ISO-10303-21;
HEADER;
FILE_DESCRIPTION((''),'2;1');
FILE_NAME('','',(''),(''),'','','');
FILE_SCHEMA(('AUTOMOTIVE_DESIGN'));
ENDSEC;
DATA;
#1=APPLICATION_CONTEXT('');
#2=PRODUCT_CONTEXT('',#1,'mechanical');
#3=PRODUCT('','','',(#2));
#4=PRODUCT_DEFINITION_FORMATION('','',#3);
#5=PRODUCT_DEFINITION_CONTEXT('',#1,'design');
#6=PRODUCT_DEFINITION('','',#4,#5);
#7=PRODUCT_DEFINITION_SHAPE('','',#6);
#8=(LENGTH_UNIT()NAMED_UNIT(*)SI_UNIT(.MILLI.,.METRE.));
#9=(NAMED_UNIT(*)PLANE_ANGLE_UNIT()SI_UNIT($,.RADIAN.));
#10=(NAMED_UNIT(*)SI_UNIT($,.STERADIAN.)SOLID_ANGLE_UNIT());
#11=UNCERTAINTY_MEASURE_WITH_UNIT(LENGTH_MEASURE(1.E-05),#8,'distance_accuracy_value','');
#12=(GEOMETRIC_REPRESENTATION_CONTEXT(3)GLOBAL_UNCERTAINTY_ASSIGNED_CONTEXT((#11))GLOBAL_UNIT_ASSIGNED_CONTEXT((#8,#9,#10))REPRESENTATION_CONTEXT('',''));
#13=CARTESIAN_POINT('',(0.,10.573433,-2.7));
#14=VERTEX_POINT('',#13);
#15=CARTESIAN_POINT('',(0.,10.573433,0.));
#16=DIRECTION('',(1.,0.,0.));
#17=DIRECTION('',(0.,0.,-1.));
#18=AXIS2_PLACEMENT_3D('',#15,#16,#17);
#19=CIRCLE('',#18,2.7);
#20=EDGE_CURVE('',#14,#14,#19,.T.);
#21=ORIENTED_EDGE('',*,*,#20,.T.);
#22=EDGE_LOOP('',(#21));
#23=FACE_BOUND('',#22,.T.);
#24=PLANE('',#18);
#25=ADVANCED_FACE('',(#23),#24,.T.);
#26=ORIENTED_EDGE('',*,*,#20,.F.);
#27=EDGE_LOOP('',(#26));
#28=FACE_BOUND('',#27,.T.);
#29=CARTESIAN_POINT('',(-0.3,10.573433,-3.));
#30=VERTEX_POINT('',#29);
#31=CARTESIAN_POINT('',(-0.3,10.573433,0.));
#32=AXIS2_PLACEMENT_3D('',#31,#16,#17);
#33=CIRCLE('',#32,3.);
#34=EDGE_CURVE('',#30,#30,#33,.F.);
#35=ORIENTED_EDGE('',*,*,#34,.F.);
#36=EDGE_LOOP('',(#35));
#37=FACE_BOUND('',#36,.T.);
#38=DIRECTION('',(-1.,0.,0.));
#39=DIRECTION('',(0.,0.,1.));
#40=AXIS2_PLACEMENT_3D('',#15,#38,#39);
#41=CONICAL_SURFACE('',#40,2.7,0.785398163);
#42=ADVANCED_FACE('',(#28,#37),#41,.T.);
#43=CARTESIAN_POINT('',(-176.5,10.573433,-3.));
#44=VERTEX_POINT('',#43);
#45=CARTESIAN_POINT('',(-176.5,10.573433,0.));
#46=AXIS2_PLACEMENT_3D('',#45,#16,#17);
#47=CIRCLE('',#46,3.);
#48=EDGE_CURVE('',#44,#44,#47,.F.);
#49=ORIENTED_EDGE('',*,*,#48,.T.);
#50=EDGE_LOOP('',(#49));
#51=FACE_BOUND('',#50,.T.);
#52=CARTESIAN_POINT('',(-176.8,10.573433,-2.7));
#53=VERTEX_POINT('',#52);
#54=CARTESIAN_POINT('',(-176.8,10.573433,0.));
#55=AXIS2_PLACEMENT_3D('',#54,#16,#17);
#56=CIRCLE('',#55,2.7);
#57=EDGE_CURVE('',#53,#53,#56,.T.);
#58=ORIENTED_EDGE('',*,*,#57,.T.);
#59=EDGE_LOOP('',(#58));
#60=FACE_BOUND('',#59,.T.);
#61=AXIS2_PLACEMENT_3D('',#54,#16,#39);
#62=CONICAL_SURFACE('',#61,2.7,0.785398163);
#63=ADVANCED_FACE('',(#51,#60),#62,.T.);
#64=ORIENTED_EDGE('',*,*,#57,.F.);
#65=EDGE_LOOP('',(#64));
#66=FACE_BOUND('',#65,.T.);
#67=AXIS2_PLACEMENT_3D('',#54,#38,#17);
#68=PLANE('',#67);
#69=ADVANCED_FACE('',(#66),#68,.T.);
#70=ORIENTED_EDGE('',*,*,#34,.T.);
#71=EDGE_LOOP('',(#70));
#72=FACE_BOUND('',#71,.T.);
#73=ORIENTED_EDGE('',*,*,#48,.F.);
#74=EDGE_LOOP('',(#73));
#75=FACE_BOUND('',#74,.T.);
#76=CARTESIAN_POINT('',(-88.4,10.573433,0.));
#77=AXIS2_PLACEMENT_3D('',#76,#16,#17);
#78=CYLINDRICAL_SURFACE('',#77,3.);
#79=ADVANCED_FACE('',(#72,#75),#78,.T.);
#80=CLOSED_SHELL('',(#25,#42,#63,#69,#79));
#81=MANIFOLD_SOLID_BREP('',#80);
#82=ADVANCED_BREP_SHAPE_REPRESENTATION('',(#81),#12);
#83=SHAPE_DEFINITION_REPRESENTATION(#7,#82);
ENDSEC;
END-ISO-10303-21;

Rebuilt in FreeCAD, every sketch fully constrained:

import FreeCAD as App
import Part
import Sketcher
from FreeCAD import Vector


def edges_at(feature, points):
    """Names of the edges that pass closest to the given points."""
    edges = feature.Shape.Edges
    near = lambda p: min(range(len(edges)), key=lambda i: edges[i].distToShape(Part.Vertex(*p))[0])
    return sorted({f"Edge{near(p) + 1}" for p in points})

doc = App.newDocument("Part")
params = doc.addObject("Spreadsheet::Sheet", "Params")
for row, (alias, value) in enumerate([
    ("sketch1_diameter", "6 mm"),
    ("pad1_length", "88.4 mm"),
    ("chamfer_size", "0.3 mm"),
    ("chamfer2_size", "0.3 mm"),
], start=1):
    params.set(f"A{row}", alias)
    params.set(f"B{row}", "=" + value)
    params.setAlias(f"B{row}", alias)

body = doc.addObject("PartDesign::Body", "Body")

sketch1 = body.newObject("Sketcher::SketchObject", "Sketch")
sketch1.AttachmentSupport = (doc.getObject("YZ_Plane"), [""])
sketch1.MapMode = "FlatFace"
sketch1.addGeometry(Part.Circle(Vector(10.6, 0, 0), Vector(0, 0, 1), 3), False)
sketch1.addConstraint([
    Sketcher.Constraint("PointOnObject", 0, 3, -1),
    Sketcher.Constraint("Diameter", 0, 6.0),
    Sketcher.Constraint("DistanceX", -1, 1, 0, 3, 10.573433),
])
sketch1.setExpression("Constraints[1]", "Params.sketch1_diameter")
pad1 = body.newObject("PartDesign::Pad", "Pad")
pad1.Profile = sketch1
pad1.setExpression("Length", "Params.pad1_length")
pad1.Reversed = True
doc.recompute()

chamfer = body.newObject("PartDesign::Chamfer", "Chamfer")
chamfer.Base = (pad1, edges_at(pad1, [(0, 10.573, 3)]))
chamfer.setExpression("Size", "Params.chamfer_size")
doc.recompute()

datumplane = body.newObject("PartDesign::Plane", "DatumPlane")
datumplane.AttachmentSupport = (doc.getObject("YZ_Plane"), [""])
datumplane.MapMode = "FlatFace"
datumplane.AttachmentOffset = App.Placement(Vector(0, 0, -88.4), App.Rotation())
mirrored = body.newObject("PartDesign::Mirrored", "Mirrored")
mirrored.Originals = [pad1]
mirrored.MirrorPlane = (datumplane, [""])
body.Tip = mirrored
doc.recompute()

chamfer2 = body.newObject("PartDesign::Chamfer", "Chamfer001")
chamfer2.Base = (mirrored, edges_at(mirrored, [(-176.8, 10.573, 3)]))
chamfer2.setExpression("Size", "Params.chamfer2_size")

doc.recompute()
